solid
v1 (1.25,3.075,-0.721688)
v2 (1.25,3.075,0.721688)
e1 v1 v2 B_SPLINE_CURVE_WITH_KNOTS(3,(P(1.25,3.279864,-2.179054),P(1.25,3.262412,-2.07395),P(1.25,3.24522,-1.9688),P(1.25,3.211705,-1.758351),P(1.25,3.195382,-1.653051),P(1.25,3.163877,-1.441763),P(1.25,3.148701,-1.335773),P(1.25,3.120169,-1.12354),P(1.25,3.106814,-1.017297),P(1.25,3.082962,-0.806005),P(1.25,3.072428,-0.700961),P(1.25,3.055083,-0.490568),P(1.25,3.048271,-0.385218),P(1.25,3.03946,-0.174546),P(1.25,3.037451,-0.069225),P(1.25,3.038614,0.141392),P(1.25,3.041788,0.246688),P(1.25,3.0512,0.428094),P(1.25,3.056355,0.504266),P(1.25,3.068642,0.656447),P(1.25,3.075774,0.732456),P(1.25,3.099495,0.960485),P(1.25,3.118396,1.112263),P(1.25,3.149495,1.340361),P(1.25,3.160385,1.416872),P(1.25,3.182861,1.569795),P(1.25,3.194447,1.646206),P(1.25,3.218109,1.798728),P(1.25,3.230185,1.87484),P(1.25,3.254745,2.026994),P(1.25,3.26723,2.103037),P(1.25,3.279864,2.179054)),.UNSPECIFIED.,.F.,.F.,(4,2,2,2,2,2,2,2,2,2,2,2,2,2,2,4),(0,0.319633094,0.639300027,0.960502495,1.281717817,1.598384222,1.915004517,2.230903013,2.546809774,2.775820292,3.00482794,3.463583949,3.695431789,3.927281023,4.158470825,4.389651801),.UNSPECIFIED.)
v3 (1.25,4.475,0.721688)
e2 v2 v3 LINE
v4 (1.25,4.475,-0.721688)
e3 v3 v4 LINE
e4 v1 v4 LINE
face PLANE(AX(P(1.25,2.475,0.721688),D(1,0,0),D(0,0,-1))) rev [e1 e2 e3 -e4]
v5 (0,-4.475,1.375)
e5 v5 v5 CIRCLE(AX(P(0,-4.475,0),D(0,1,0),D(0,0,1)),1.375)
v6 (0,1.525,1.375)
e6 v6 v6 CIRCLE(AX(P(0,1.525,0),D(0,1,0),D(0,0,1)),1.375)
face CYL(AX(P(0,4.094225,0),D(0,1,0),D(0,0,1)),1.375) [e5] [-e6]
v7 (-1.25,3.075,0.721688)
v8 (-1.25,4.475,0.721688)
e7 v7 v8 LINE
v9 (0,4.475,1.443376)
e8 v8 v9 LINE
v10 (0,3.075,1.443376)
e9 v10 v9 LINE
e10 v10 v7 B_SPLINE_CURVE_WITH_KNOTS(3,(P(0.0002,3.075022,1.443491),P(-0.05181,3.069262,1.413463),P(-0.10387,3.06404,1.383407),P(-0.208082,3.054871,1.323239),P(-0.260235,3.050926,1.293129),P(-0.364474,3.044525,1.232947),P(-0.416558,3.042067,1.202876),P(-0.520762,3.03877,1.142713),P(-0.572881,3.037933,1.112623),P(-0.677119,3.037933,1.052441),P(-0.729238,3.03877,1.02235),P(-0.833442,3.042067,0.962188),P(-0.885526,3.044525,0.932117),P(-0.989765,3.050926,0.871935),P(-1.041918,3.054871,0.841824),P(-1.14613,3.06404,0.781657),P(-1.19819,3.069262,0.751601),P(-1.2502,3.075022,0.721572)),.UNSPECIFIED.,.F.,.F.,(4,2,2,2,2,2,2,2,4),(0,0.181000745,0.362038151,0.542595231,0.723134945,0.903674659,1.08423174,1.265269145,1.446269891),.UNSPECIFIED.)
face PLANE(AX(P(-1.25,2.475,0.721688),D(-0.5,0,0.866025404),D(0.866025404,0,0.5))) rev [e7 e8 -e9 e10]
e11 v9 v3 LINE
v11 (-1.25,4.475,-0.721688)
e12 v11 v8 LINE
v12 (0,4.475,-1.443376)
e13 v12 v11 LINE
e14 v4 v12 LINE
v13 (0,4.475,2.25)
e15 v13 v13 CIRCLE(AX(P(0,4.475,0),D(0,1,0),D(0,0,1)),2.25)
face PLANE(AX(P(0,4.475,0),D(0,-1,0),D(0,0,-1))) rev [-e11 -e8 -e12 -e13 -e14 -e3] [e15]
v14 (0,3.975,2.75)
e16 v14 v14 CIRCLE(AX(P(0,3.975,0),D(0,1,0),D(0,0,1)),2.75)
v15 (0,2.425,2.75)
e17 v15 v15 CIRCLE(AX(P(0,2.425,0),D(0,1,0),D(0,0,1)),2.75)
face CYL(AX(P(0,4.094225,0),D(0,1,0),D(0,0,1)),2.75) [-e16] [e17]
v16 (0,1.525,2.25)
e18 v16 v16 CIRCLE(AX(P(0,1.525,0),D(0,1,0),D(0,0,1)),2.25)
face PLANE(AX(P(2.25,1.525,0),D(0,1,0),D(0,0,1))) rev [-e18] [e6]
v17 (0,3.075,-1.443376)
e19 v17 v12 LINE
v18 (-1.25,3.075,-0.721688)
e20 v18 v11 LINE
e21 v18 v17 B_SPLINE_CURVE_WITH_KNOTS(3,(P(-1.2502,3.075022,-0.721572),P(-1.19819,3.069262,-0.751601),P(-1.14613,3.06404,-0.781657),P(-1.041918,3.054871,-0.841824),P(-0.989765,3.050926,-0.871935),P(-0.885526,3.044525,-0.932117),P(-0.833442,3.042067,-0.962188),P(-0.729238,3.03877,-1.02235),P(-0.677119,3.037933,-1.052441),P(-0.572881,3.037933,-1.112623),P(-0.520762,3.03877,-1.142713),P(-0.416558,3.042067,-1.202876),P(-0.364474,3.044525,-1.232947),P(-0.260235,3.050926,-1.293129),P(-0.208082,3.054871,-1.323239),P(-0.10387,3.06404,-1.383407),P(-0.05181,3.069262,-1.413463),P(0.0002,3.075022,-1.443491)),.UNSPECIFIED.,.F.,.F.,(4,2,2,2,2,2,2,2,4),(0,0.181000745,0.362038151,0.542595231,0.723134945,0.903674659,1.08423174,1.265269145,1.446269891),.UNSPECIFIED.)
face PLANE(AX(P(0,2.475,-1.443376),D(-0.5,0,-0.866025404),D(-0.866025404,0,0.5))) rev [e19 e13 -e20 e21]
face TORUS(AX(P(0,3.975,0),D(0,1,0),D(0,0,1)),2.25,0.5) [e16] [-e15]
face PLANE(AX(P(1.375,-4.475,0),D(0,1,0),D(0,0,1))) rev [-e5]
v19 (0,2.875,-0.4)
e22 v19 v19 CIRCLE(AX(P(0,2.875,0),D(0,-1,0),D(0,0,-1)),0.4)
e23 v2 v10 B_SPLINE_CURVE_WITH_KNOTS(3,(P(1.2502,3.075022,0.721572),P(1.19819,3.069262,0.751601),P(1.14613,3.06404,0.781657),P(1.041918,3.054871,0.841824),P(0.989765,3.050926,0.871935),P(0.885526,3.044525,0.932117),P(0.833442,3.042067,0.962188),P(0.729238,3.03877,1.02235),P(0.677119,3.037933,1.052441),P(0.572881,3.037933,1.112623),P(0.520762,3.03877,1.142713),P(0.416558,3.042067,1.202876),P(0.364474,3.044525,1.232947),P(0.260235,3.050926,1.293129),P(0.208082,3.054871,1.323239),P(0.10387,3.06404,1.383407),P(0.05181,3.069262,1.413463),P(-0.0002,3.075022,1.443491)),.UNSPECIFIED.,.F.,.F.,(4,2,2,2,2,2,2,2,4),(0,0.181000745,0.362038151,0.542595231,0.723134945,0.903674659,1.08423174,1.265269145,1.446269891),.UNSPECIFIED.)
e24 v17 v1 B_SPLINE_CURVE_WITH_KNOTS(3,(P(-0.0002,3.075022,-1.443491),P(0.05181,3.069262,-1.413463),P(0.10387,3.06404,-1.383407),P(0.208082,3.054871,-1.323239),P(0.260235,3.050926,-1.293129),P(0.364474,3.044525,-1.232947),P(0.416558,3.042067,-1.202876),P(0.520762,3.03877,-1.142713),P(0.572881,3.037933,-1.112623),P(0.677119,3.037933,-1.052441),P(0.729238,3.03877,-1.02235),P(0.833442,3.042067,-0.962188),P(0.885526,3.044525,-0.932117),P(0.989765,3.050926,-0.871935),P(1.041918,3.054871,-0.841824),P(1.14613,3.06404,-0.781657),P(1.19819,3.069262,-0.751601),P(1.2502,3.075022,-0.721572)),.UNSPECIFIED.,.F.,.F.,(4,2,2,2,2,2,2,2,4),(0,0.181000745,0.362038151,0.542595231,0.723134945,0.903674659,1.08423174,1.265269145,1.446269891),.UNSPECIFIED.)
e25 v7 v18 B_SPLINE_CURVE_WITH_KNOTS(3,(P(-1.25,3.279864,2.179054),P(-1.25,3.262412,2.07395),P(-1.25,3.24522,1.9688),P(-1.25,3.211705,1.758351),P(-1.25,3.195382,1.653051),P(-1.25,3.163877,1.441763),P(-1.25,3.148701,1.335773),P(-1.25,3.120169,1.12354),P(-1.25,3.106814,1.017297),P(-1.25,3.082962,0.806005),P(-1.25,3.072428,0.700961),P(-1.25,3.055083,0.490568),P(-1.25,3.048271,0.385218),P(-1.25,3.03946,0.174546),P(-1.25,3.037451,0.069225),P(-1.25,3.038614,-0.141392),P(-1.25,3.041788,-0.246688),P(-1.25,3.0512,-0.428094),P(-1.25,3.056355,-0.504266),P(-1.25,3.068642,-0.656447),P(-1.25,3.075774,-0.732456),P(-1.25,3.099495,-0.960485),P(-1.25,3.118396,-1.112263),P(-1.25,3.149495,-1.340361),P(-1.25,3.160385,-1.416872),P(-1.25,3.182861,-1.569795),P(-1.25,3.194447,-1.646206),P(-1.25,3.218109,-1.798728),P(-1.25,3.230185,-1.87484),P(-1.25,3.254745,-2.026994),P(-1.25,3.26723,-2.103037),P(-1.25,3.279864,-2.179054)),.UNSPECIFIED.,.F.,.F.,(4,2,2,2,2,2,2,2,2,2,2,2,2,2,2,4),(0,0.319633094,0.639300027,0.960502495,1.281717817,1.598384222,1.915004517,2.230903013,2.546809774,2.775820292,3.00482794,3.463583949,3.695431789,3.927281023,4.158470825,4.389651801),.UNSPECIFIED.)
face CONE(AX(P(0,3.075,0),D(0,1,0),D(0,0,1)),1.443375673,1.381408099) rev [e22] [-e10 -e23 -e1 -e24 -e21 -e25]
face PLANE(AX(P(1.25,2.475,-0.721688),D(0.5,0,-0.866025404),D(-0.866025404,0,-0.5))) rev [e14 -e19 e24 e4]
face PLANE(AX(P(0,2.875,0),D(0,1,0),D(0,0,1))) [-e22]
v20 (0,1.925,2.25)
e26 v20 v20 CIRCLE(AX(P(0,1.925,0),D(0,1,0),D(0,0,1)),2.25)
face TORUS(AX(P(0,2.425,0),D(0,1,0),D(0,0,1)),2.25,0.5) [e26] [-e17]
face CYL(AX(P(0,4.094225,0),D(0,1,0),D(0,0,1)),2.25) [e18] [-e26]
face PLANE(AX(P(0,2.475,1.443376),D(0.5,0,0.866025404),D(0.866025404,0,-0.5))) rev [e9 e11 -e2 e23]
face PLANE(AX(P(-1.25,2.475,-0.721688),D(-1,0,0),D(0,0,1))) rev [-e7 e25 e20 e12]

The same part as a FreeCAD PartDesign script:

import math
import FreeCAD as App
import Part
import Sketcher

V = App.Vector
Q = App.Units.Quantity

doc = App.newDocument("Part")
params = doc.addObject("Spreadsheet::Sheet", "Params")
for row, (alias, value) in enumerate([
    ("sketch1_radius", "0.5 mm"),
    ("sketch1_height", "6 mm"),
    ("sketch1_height2", "0.4 mm"),
    ("sketch1_width", "2.25 mm"),
    ("sketch1_height3", "8.95 mm"),
    ("revolution_angle", "360 deg"),
    ("pad1_length", "2 mm"),
    ("sketch3_width", "0.4 mm"),
    ("sketch3_width2", "0.6 mm"),
    ("groove_angle", "360 deg"),
], start=1):
    params.set(f"A{row}", alias)
    params.set(f"B{row}", "=" + value)
    params.setAlias(f"B{row}", alias)

body = doc.addObject("PartDesign::Body", "Body")

sketch1 = body.newObject("Sketcher::SketchObject", "Sketch")
sketch1.AttachmentSupport = (doc.getObject("XY_Plane"), [""])
sketch1.MapMode = "FlatFace"
sketch1.addGeometry([
    Part.LineSegment(V(2.25, 4.475, 0), V(0, 4.475, 0)),
    Part.LineSegment(V(0, 4.475, 0), V(0, -4.475, 0)),
    Part.LineSegment(V(0, -4.475, 0), V(1.375, -4.475, 0)),
    Part.LineSegment(V(1.375, -4.475, 0), V(1.375, 1.525, 0)),
    Part.LineSegment(V(1.375, 1.525, 0), V(2.25, 1.525, 0)),
    Part.LineSegment(V(2.25, 1.525, 0), V(2.25, 1.925, 0)),
    Part.ArcOfCircle(Part.Circle(V(2.25, 2.425, 0), V(0, 0, 1), 0.5), math.radians(-90), math.radians(0)),
    Part.LineSegment(V(2.75, 2.425, 0), V(2.75, 3.975, 0)),
    Part.ArcOfCircle(Part.Circle(V(2.25, 3.975, 0), V(0, 0, 1), 0.5), math.radians(0), math.radians(90)),
], False)
sketch1.addConstraint([
    Sketcher.Constraint("Coincident", 0, 2, 1, 1),
    Sketcher.Constraint("Coincident", 1, 2, 2, 1),
    Sketcher.Constraint("Coincident", 2, 2, 3, 1),
    Sketcher.Constraint("Coincident", 3, 2, 4, 1),
    Sketcher.Constraint("Coincident", 4, 2, 5, 1),
    Sketcher.Constraint("Coincident", 5, 2, 6, 1),
    Sketcher.Constraint("Tangent", 6, 2, 7, 1),
    Sketcher.Constraint("Tangent", 7, 2, 8, 1),
    Sketcher.Constraint("Tangent", 8, 2, 0, 1),
    Sketcher.Constraint("Horizontal", 0),
    Sketcher.Constraint("Vertical", 1),
    Sketcher.Constraint("Horizontal", 2),
    Sketcher.Constraint("Vertical", 3),
    Sketcher.Constraint("Horizontal", 4),
    Sketcher.Constraint("Vertical", 5),
    Sketcher.Constraint("Vertical", 7),
    Sketcher.Constraint("Equal", 6, 8),
    Sketcher.Constraint("Symmetric", 0, 2, 1, 2, -1, 1),
    Sketcher.Constraint("Vertical", 8, 3, 4, 2),
    Sketcher.Constraint("Radius", 6, 0.5),
    Sketcher.Constraint("DistanceY", 3, 1, 3, 2, 6.0),
    Sketcher.Constraint("DistanceY", 5, 1, 5, 2, 0.4),
    Sketcher.Constraint("DistanceX", 0, 2, 0, 1, 2.25),
    Sketcher.Constraint("DistanceY", 1, 2, 1, 1, 8.95),
    Sketcher.Constraint("DistanceX", 2, 1, 2, 2, 1.375),
])
sketch1.setExpression("Constraints[19]", "Params.sketch1_radius")
sketch1.setExpression("Constraints[20]", "Params.sketch1_height")
sketch1.setExpression("Constraints[21]", "Params.sketch1_height2")
sketch1.setExpression("Constraints[22]", "Params.sketch1_width")
sketch1.setExpression("Constraints[23]", "Params.sketch1_height3")
revolution = body.newObject("PartDesign::Revolution", "Revolution")
revolution.Profile = sketch1
revolution.ReferenceAxis = (sketch1, ["V_Axis"])
revolution.setExpression("Angle", "Params.revolution_angle")
body2 = doc.addObject("PartDesign::Body", "Body001")

sketch2 = body2.newObject("Sketcher::SketchObject", "Sketch001")
sketch2.AttachmentSupport = (doc.getObject("XZ_Plane001"), [""])
sketch2.MapMode = "FlatFace"
sketch2.AttachmentOffset = App.Placement(V(0, 0, -4.475), App.Rotation())
sketch2.addGeometry([
    Part.LineSegment(V(0, -1.443376, 0), V(-1.25, -0.721688, 0)),
    Part.LineSegment(V(-1.25, -0.721688, 0), V(-1.25, 0.721688, 0)),
    Part.LineSegment(V(-1.25, 0.721688, 0), V(0, 1.443376, 0)),
    Part.LineSegment(V(0, 1.443376, 0), V(1.25, 0.721688, 0)),
    Part.LineSegment(V(1.25, 0.721688, 0), V(1.25, -0.721688, 0)),
    Part.LineSegment(V(1.25, -0.721688, 0), V(0, -1.443376, 0)),
], False)
sketch2.addConstraint([
    Sketcher.Constraint("Coincident", 0, 2, 1, 1),
    Sketcher.Constraint("Coincident", 1, 2, 2, 1),
    Sketcher.Constraint("Coincident", 2, 2, 3, 1),
    Sketcher.Constraint("Coincident", 3, 2, 4, 1),
    Sketcher.Constraint("Coincident", 4, 2, 5, 1),
    Sketcher.Constraint("Coincident", 5, 2, 0, 1),
    Sketcher.Constraint("Vertical", 1),
    Sketcher.Constraint("Vertical", 4),
    Sketcher.Constraint("Symmetric", 0, 2, 3, 2, -1, 1),
    Sketcher.Constraint("Symmetric", 2, 2, 5, 2, -1, 1),
    Sketcher.Constraint("PointOnObject", 2, 2, -2),
    Sketcher.Constraint("Parallel", 2, 5),
    Sketcher.Constraint("Horizontal", 1, 2, 3, 2),
    Sketcher.Constraint("Angle", 0, Q("150 deg")),
    Sketcher.Constraint("DistanceX", 1, 2, 3, 2, 2.5),
    Sketcher.Constraint("DistanceY", 1, 1, 1, 2, 1.443376),
])
pad1 = body2.newObject("PartDesign::Pad", "Pad")
pad1.Profile = sketch2
pad1.setExpression("Length", "Params.pad1_length")

sketch3 = body2.newObject("Sketcher::SketchObject", "Sketch002")
sketch3.AttachmentSupport = (doc.getObject("YZ_Plane001"), [""])
sketch3.MapMode = "FlatFace"
sketch3.addGeometry([
    Part.LineSegment(V(2.875, -0.4, 0), V(2.875, 0, 0)),
    Part.LineSegment(V(2.875, 0, 0), V(2.475, 0, 0)),
    Part.LineSegment(V(2.475, 0, 0), V(2.475, -1.443376, 0)),
    Part.LineSegment(V(2.475, -1.443376, 0), V(3.075, -1.443376, 0)),
    Part.LineSegment(V(3.075, -1.443376, 0), V(2.875, -0.4, 0)),
], False)
sketch3.addConstraint([
    Sketcher.Constraint("Coincident", 0, 2, 1, 1),
    Sketcher.Constraint("Coincident", 1, 2, 2, 1),
    Sketcher.Constraint("Coincident", 2, 2, 3, 1),
    Sketcher.Constraint("Coincident", 3, 2, 4, 1),
    Sketcher.Constraint("Coincident", 4, 2, 0, 1),
    Sketcher.Constraint("Vertical", 0),
    Sketcher.Constraint("Horizontal", 1),
    Sketcher.Constraint("Vertical", 2),
    Sketcher.Constraint("Horizontal", 3),
    Sketcher.Constraint("PointOnObject", 0, 2, -1),
    Sketcher.Constraint("Equal", 1, 0),
    Sketcher.Constraint("DistanceX", 1, 2, 1, 1, 0.4),
    Sketcher.Constraint("DistanceX", 3, 1, 3, 2, 0.6),
    Sketcher.Constraint("DistanceX", -1, 1, 0, 2, 2.875),
    Sketcher.Constraint("Distance", 4, 1.062371),
])
sketch3.setExpression("Constraints[11]", "Params.sketch3_width")
sketch3.setExpression("Constraints[12]", "Params.sketch3_width2")
groove = body2.newObject("PartDesign::Groove", "Groove")
groove.Profile = sketch3
groove.ReferenceAxis = (sketch3, ["H_Axis"])
groove.setExpression("Angle", "Params.groove_angle")
doc.recompute()

boolean = body.newObject("PartDesign::Boolean", "Boolean")
boolean.Type = "Cut"
boolean.addObjects([body2])

doc.recompute()
